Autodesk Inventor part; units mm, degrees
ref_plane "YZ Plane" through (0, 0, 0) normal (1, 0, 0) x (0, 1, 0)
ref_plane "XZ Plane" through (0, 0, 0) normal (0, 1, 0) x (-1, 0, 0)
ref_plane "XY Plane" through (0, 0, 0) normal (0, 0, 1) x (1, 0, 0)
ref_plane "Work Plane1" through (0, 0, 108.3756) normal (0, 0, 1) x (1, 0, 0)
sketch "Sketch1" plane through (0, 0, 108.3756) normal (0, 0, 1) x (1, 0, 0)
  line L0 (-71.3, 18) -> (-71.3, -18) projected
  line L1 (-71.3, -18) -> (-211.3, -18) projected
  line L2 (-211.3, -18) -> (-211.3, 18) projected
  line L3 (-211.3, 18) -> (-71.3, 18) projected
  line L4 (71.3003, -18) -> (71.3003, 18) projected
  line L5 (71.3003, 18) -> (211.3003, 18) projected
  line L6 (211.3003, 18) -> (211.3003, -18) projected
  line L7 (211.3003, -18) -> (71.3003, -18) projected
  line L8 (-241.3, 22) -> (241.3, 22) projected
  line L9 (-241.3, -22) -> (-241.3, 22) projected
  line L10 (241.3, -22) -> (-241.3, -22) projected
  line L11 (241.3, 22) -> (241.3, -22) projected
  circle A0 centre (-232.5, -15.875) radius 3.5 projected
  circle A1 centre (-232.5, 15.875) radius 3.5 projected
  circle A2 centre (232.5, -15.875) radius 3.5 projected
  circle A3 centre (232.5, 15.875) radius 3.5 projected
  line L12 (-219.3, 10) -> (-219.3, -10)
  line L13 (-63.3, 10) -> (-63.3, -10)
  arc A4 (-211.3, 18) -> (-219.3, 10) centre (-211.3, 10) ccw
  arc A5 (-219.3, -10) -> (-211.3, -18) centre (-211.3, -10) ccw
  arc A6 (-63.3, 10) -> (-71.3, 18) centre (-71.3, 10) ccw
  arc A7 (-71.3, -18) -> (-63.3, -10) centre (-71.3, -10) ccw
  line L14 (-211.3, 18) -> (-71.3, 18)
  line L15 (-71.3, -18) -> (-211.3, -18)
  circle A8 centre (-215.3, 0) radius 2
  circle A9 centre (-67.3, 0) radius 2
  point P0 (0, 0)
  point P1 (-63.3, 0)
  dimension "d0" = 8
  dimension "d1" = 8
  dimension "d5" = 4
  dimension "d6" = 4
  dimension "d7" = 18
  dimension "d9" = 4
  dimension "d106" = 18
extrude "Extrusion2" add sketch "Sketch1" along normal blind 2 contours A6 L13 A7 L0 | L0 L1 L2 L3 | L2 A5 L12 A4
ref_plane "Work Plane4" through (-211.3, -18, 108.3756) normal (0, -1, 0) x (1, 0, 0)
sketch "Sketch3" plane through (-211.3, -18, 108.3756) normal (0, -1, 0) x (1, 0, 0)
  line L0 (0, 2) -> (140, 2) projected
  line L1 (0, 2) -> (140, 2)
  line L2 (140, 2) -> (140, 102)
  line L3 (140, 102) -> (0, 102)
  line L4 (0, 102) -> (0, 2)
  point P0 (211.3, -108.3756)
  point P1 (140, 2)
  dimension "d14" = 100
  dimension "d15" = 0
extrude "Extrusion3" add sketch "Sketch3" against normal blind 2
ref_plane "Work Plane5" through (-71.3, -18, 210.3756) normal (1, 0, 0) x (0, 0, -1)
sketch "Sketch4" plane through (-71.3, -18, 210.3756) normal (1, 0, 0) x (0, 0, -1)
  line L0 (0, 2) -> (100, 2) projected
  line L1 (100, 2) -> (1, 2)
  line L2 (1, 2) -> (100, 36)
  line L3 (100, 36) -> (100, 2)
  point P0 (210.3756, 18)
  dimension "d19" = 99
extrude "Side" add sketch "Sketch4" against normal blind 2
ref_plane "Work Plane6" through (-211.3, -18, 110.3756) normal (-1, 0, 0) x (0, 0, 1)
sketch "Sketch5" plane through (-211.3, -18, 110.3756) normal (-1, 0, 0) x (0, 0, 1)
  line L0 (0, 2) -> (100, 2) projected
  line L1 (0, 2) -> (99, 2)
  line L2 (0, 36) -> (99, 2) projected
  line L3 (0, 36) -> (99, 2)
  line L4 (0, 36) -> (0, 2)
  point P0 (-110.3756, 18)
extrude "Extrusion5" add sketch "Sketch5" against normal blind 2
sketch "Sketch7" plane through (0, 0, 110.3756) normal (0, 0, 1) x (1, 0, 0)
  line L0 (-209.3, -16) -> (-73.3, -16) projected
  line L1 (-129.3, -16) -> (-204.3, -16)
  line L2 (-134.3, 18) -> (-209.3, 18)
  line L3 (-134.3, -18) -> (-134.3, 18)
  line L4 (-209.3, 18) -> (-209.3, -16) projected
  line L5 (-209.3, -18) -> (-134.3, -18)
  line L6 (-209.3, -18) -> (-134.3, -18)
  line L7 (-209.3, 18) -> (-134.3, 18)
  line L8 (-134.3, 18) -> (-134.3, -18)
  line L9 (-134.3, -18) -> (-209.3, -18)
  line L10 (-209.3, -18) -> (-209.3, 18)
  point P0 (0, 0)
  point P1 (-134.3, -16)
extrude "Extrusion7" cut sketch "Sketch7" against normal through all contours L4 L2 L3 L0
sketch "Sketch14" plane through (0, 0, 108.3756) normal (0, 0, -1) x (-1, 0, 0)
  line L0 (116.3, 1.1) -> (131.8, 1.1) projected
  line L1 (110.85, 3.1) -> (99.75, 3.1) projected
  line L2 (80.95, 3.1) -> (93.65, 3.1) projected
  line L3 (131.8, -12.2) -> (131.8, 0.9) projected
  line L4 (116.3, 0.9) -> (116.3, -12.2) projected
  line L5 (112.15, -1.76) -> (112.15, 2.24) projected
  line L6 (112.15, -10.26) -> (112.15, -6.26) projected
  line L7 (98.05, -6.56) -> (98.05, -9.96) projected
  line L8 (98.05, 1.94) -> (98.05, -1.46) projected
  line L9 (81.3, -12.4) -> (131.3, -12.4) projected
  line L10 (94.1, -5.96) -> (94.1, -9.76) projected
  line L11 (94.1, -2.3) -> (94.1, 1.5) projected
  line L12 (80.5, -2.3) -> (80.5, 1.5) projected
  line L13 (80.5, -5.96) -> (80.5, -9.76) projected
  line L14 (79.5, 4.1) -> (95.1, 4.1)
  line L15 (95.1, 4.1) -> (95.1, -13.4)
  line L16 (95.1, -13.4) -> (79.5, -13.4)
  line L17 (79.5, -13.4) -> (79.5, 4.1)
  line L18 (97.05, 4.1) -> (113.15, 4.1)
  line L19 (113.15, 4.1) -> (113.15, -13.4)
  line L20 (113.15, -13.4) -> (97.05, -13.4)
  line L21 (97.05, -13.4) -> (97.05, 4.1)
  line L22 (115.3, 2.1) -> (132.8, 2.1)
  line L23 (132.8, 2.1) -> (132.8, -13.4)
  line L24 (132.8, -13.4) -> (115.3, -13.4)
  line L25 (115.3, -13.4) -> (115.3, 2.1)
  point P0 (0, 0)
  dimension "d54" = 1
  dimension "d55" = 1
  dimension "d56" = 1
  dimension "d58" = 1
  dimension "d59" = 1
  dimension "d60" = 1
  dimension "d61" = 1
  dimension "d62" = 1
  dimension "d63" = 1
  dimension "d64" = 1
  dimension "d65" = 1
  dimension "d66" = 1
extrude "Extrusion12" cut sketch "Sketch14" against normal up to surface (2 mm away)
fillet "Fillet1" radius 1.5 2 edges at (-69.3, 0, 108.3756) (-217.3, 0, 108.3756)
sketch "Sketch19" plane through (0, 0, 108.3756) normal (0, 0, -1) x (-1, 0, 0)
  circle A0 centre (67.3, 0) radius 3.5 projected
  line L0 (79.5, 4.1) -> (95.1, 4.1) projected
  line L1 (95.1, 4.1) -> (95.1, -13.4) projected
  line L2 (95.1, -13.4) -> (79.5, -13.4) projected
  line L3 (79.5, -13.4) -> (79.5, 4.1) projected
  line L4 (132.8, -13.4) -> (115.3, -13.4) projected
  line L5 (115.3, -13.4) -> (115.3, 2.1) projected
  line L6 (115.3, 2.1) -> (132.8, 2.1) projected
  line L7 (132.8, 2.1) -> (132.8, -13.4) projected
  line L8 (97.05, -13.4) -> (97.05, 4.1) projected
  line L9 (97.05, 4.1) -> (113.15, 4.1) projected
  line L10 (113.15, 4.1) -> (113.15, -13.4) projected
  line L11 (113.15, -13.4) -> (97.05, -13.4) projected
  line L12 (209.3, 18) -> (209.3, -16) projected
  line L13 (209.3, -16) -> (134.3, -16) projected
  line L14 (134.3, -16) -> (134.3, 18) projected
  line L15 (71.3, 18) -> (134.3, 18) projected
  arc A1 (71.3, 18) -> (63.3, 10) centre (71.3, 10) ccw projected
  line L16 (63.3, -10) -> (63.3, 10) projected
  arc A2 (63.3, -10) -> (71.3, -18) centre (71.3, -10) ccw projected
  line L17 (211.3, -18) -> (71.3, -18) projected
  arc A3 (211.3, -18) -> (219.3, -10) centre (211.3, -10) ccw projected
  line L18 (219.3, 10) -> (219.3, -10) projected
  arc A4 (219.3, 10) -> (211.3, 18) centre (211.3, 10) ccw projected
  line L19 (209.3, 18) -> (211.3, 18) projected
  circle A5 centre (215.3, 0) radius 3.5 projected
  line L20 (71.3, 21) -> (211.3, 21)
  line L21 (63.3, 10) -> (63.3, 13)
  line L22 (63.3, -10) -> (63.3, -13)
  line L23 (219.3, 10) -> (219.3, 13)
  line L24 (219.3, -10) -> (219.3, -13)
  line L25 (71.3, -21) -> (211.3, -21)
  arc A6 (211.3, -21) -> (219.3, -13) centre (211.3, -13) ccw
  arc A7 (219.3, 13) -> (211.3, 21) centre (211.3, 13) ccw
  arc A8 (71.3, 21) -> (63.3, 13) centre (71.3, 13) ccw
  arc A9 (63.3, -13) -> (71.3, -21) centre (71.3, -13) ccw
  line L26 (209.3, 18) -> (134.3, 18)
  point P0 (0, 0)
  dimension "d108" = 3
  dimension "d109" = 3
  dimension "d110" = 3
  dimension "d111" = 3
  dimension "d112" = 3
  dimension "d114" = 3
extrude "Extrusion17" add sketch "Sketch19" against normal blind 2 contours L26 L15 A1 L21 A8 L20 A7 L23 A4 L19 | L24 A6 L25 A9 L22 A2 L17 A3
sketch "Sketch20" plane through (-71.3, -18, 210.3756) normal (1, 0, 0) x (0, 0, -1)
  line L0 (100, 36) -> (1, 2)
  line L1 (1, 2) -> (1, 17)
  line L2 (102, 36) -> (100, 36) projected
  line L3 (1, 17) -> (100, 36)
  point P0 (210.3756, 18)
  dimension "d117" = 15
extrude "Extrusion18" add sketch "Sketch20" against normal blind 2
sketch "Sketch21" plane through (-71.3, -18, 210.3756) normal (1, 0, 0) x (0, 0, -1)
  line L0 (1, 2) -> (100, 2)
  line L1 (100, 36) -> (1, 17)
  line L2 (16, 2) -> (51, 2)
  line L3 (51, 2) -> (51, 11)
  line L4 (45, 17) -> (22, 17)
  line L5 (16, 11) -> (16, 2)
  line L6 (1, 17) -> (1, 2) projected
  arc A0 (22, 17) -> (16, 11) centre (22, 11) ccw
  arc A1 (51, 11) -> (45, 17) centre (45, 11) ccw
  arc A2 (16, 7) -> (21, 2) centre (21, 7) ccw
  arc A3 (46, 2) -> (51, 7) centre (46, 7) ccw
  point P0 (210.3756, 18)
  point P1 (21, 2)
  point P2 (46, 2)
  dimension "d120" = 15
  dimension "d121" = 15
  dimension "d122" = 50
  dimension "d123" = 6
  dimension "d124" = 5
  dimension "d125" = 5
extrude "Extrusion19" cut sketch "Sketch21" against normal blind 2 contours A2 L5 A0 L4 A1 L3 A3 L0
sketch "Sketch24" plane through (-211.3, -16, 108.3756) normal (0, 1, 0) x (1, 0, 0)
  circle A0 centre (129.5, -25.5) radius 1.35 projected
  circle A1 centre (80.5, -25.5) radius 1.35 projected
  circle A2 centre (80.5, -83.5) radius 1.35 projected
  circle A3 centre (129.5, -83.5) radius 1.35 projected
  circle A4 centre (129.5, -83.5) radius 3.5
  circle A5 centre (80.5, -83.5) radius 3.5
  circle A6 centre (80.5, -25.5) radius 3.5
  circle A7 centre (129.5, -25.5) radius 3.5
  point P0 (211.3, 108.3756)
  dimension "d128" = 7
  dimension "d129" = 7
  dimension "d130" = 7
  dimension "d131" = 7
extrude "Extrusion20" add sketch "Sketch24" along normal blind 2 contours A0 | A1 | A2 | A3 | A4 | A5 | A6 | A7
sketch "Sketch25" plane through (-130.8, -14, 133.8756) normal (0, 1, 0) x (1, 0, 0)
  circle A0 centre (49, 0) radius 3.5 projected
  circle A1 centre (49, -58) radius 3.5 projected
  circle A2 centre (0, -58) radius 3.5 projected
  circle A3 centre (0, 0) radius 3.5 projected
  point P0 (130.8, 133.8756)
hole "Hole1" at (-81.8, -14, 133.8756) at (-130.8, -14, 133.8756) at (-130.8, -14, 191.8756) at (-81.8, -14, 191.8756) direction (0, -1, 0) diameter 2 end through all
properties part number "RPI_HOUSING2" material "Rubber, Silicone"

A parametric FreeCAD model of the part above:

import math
import FreeCAD as App
import Part
import Sketcher

V = App.Vector


def edges_at(feature, points):
    """Names of the edges that pass closest to the given points."""
    edges = feature.Shape.Edges
    near = lambda p: min(range(len(edges)), key=lambda i: edges[i].distToShape(Part.Vertex(*p))[0])
    return sorted({f"Edge{near(p) + 1}" for p in points})


def add_polygon(sketch, points):
    """Adds a closed chain of lines whose ends are joined by coincident constraints."""
    first, n = sketch.GeometryCount, len(points)
    for a, b in zip(points, points[1:] + points[:1]):
        sketch.addGeometry(Part.LineSegment(App.Vector(*a, 0), App.Vector(*b, 0)), False)
    for i in range(n):
        sketch.addConstraint(Sketcher.Constraint("Coincident", first + i, 2, first + (i + 1) % n, 1))

doc = App.newDocument("Part")
body = doc.addObject("PartDesign::Body", "Body")

# Sketch on XY plane
sketch1 = body.newObject("Sketcher::SketchObject", "Sketch")
sketch1.AttachmentSupport = (doc.getObject("XY_Plane"), [""])
sketch1.MapMode = "FlatFace"
sketch1.AttachmentOffset = App.Placement(V(0, 0, 108.3756), App.Rotation())
sketch1.addGeometry([
    Part.ArcOfCircle(Part.Circle(V(-71.3, 10, 0), V(0, 0, 1), 8), math.radians(0), math.radians(90)),  # 0
    Part.LineSegment(V(-71.3, 18, 0), V(-211.3, 18, 0)),  # 1
    Part.ArcOfCircle(Part.Circle(V(-211.3, 10, 0), V(0, 0, 1), 8), math.radians(90), math.radians(180)),  # 2
    Part.LineSegment(V(-219.3, 10, 0), V(-219.3, -10, 0)),  # 3
    Part.ArcOfCircle(Part.Circle(V(-211.3, -10, 0), V(0, 0, 1), 8), math.radians(180), math.radians(270)),  # 4
    Part.LineSegment(V(-211.3, -18, 0), V(-71.3, -18, 0)),  # 5
    Part.ArcOfCircle(Part.Circle(V(-71.3, -10, 0), V(0, 0, 1), 8), math.radians(-90), math.radians(0)),  # 6
    Part.LineSegment(V(-63.3, -10, 0), V(-63.3, 10, 0)),  # 7
    Part.Circle(V(-67.3, 0, 0), V(0, 0, 1), 2),  # 8
    Part.Circle(V(-215.3, 0, 0), V(0, 0, 1), 2),  # 9
], False)
sketch1.addConstraint([
    Sketcher.Constraint("Tangent", 0, 2, 1, 1),
    Sketcher.Constraint("Tangent", 1, 2, 2, 1),
    Sketcher.Constraint("Tangent", 2, 2, 3, 1),
    Sketcher.Constraint("Tangent", 3, 2, 4, 1),
    Sketcher.Constraint("Tangent", 4, 2, 5, 1),
    Sketcher.Constraint("Tangent", 5, 2, 6, 1),
    Sketcher.Constraint("Tangent", 6, 2, 7, 1),
    Sketcher.Constraint("Tangent", 7, 2, 0, 1),
    Sketcher.Constraint("Horizontal", 1),
    Sketcher.Constraint("Vertical", 3),
    Sketcher.Constraint("Horizontal", 5),
    Sketcher.Constraint("Vertical", 7),
    Sketcher.Constraint("Equal", 0, 2),
    Sketcher.Constraint("Equal", 2, 4),
    Sketcher.Constraint("Equal", 4, 6),
    Sketcher.Constraint("Equal", 8, 9),
    Sketcher.Constraint("PointOnObject", 8, 3, -1),
    Sketcher.Constraint("PointOnObject", 9, 3, -1),
    Sketcher.Constraint("Diameter", 8, 4.0),
    Sketcher.Constraint("Radius", 0, 8.0),
    Sketcher.Constraint("DistanceY", -1, 1, 0, 2, 18.0),
    Sketcher.Constraint("DistanceY", 4, 2, -1, 1, 18.0),
    Sketcher.Constraint("DistanceX", 0, 3, 8, 3, 4.0),
    Sketcher.Constraint("DistanceX", 9, 3, 2, 3, 4.0),
    Sketcher.Constraint("DistanceX", 1, 2, 1, 1, 140.0),
    Sketcher.Constraint("DistanceX", 0, 3, -1, 1, 71.3),
])
pad1 = body.newObject("PartDesign::Pad", "Pad")
pad1.Profile = sketch1
pad1.Length = 2

# Sketch on XZ plane
sketch2 = body.newObject("Sketcher::SketchObject", "Sketch001")
sketch2.AttachmentSupport = (doc.getObject("XZ_Plane"), [""])
sketch2.MapMode = "FlatFace"
sketch2.AttachmentOffset = App.Placement(V(0, 0, 18), App.Rotation())
add_polygon(sketch2, [(-211, 210), (-211, 110), (-71, 110), (-71, 210)])  # lines 0-3
sketch2.addConstraint([
    Sketcher.Constraint("Vertical", 0),
    Sketcher.Constraint("Horizontal", 1),
    Sketcher.Constraint("Vertical", 2),
    Sketcher.Constraint("Horizontal", 3),
    Sketcher.Constraint("DistanceY", 0, 2, 0, 1, 100.0),
    Sketcher.Constraint("DistanceX", 1, 1, 1, 2, 140.0),
    Sketcher.Constraint("DistanceX", 0, 2, -1, 1, 211.3),
    Sketcher.Constraint("DistanceY", -1, 1, 0, 2, 110.3756),
])
pad2 = body.newObject("PartDesign::Pad", "Pad001")
pad2.Profile = sketch2
pad2.Length = 2
pad2.Reversed = True

# Sketch on YZ plane
sketch3 = body.newObject("Sketcher::SketchObject", "Sketch002")
sketch3.AttachmentSupport = (doc.getObject("YZ_Plane"), [""])
sketch3.MapMode = "FlatFace"
sketch3.AttachmentOffset = App.Placement(V(0, 0, -71.3), App.Rotation())
add_polygon(sketch3, [(18, 110), (-16, 209), (-16, 110)])  # lines 0-2
sketch3.addConstraint([
    Sketcher.Constraint("Vertical", 1),
    Sketcher.Constraint("Horizontal", 2),
    Sketcher.Constraint("DistanceY", 1, 2, 1, 1, 99.0),
    Sketcher.Constraint("DistanceX", 2, 1, 2, 2, 34.0),
    Sketcher.Constraint("DistanceX", 0, 2, -1, 1, 16.0),
    Sketcher.Constraint("DistanceY", -1, 1, 0, 2, 209.3756),
])
pad3 = body.newObject("PartDesign::Pad", "Pad002")
pad3.Profile = sketch3
pad3.Length = 2
pad3.Reversed = True

# Sketch on YZ plane
sketch4 = body.newObject("Sketcher::SketchObject", "Sketch003")
sketch4.AttachmentSupport = (doc.getObject("YZ_Plane"), [""])
sketch4.MapMode = "FlatFace"
sketch4.AttachmentOffset = App.Placement(V(0, 0, -211.3), App.Rotation())
add_polygon(sketch4, [(18, 110), (-16, 110), (-16, 209)])  # lines 0-2
sketch4.addConstraint([
    Sketcher.Constraint("Horizontal", 0),
    Sketcher.Constraint("Vertical", 1),
    Sketcher.Constraint("DistanceX", 0, 2, 0, 1, 34.0),
    Sketcher.Constraint("DistanceY", 1, 1, 1, 2, 99.0),
    Sketcher.Constraint("DistanceX", 0, 2, -1, 1, 16.0),
    Sketcher.Constraint("DistanceY", -1, 1, 0, 2, 110.3756),
])
pad4 = body.newObject("PartDesign::Pad", "Pad003")
pad4.Profile = sketch4
pad4.Length = 2

# Sketch on XY plane
sketch5 = body.newObject("Sketcher::SketchObject", "Sketch004")
sketch5.AttachmentSupport = (doc.getObject("XY_Plane"), [""])
sketch5.MapMode = "FlatFace"
sketch5.AttachmentOffset = App.Placement(V(0, 0, 110.3756), App.Rotation())
add_polygon(sketch5, [(-209, 18), (-209, -16), (-134, -16), (-134, 18)])  # lines 0-3
sketch5.addConstraint([
    Sketcher.Constraint("Vertical", 0),
    Sketcher.Constraint("Horizontal", 1),
    Sketcher.Constraint("Vertical", 2),
    Sketcher.Constraint("Horizontal", 3),
    Sketcher.Constraint("DistanceX", 1, 1, 1, 2, 75.0),
    Sketcher.Constraint("DistanceY", 0, 2, 0, 1, 34.0),
    Sketcher.Constraint("DistanceY", 0, 2, -1, 1, 16.0),
    Sketcher.Constraint("DistanceX", 0, 2, -1, 1, 209.3),
])
pocket1 = body.newObject("PartDesign::Pocket", "Pocket")
pocket1.Profile = sketch5
pocket1.Type = "ThroughAll"

# Sketch on XY plane
sketch6 = body.newObject("Sketcher::SketchObject", "Sketch005")
sketch6.AttachmentSupport = (doc.getObject("XY_Plane"), [""])
sketch6.MapMode = "FlatFace"
sketch6.AttachmentOffset = App.Placement(V(0, 0, 108.3756), App.Rotation())
add_polygon(sketch6, [(-115, 2), (-115, -13), (-133, -13), (-133, 2)])  # lines 0-3
add_polygon(sketch6, [(-97, 4), (-97, -13), (-113, -13), (-113, 4)])  # lines 4-7
add_polygon(sketch6, [(-95, -13), (-95, 4), (-80, 4), (-80, -13)])  # lines 8-11
sketch6.addConstraint([
    Sketcher.Constraint("Vertical", 0),
    Sketcher.Constraint("Horizontal", 1),
    Sketcher.Constraint("Vertical", 2),
    Sketcher.Constraint("Horizontal", 3),
    Sketcher.Constraint("Vertical", 4),
    Sketcher.Constraint("Horizontal", 5),
    Sketcher.Constraint("Vertical", 6),
    Sketcher.Constraint("Horizontal", 7),
    Sketcher.Constraint("Vertical", 8),
    Sketcher.Constraint("Horizontal", 9),
    Sketcher.Constraint("Vertical", 10),
    Sketcher.Constraint("Horizontal", 11),
    Sketcher.Constraint("Horizontal", 1, 2, 4, 2),
    Sketcher.Constraint("Horizontal", 7, 2, 8, 2),
    Sketcher.Constraint("Horizontal", 5, 2, 10, 2),
    Sketcher.Constraint("Equal", 3, 4),
    Sketcher.Constraint("DistanceX", 1, 2, 1, 1, 17.5),
    Sketcher.Constraint("DistanceX", 5, 2, 5, 1, 16.1),
    Sketcher.Constraint("DistanceX", 9, 1, 9, 2, 15.6),
    Sketcher.Constraint("DistanceY", 0, 2, 0, 1, 15.5),
    Sketcher.Constraint("DistanceX", 0, 2, -1, 1, 115.3),
    Sketcher.Constraint("DistanceY", 0, 2, -1, 1, 13.4),
    Sketcher.Constraint("DistanceX", 8, 2, -1, 1, 95.1),
    Sketcher.Constraint("DistanceX", 4, 2, -1, 1, 97.05),
])
pocket2 = body.newObject("PartDesign::Pocket", "Pocket001")
pocket2.Profile = sketch6
pocket2.Length = 2
pocket2.Reversed = True
doc.recompute()

fillet = body.newObject("PartDesign::Fillet", "Fillet")
fillet.Base = (pocket2, edges_at(pocket2, [(-69.3, 0, 108.376), (-217.3, 0, 108.376)]))
fillet.Radius = 1.5

# Sketch on XY plane
sketch7 = body.newObject("Sketcher::SketchObject", "Sketch006")
sketch7.AttachmentSupport = (doc.getObject("XY_Plane"), [""])
sketch7.MapMode = "FlatFace"
sketch7.AttachmentOffset = App.Placement(V(0, 0, 108.3756), App.Rotation())
sketch7.addGeometry([
    Part.LineSegment(V(-71.3, 18, 0), V(-211.3, 18, 0)),  # 0
    Part.ArcOfCircle(Part.Circle(V(-211.3, 10, 0), V(0, 0, 1), 8), math.radians(90), math.radians(180)),  # 1
    Part.LineSegment(V(-219.3, 10, 0), V(-219.3, 13, 0)),  # 2
    Part.ArcOfCircle(Part.Circle(V(-211.3, 13, 0), V(0, 0, 1), 8), math.radians(90), math.radians(180)),  # 3
    Part.LineSegment(V(-211.3, 21, 0), V(-71.3, 21, 0)),  # 4
    Part.ArcOfCircle(Part.Circle(V(-71.3, 13, 0), V(0, 0, 1), 8), math.radians(0), math.radians(90)),  # 5
    Part.LineSegment(V(-63.3, 13, 0), V(-63.3, 10, 0)),  # 6
    Part.ArcOfCircle(Part.Circle(V(-71.3, 10, 0), V(0, 0, 1), 8), math.radians(0), math.radians(90)),  # 7
    Part.LineSegment(V(-219.3, -13, 0), V(-219.3, -10, 0)),  # 8
    Part.ArcOfCircle(Part.Circle(V(-211.3, -10, 0), V(0, 0, 1), 8), math.radians(180), math.radians(270)),  # 9
    Part.LineSegment(V(-211.3, -18, 0), V(-71.3, -18, 0)),  # 10
    Part.ArcOfCircle(Part.Circle(V(-71.3, -10, 0), V(0, 0, 1), 8), math.radians(-90), math.radians(0)),  # 11
    Part.LineSegment(V(-63.3, -10, 0), V(-63.3, -13, 0)),  # 12
    Part.ArcOfCircle(Part.Circle(V(-71.3, -13, 0), V(0, 0, 1), 8), math.radians(-90), math.radians(0)),  # 13
    Part.LineSegment(V(-71.3, -21, 0), V(-211.3, -21, 0)),  # 14
    Part.ArcOfCircle(Part.Circle(V(-211.3, -13, 0), V(0, 0, 1), 8), math.radians(180), math.radians(270)),  # 15
], False)
sketch7.addConstraint([
    Sketcher.Constraint("Tangent", 0, 2, 1, 1),
    Sketcher.Constraint("Tangent", 1, 2, 2, 1),
    Sketcher.Constraint("Tangent", 2, 2, 3, 2),
    Sketcher.Constraint("Tangent", 3, 1, 4, 1),
    Sketcher.Constraint("Tangent", 4, 2, 5, 2),
    Sketcher.Constraint("Tangent", 5, 1, 6, 1),
    Sketcher.Constraint("Tangent", 6, 2, 7, 1),
    Sketcher.Constraint("Tangent", 7, 2, 0, 1),
    Sketcher.Constraint("Tangent", 8, 2, 9, 1),
    Sketcher.Constraint("Tangent", 9, 2, 10, 1),
    Sketcher.Constraint("Tangent", 10, 2, 11, 1),
    Sketcher.Constraint("Tangent", 11, 2, 12, 1),
    Sketcher.Constraint("Tangent", 12, 2, 13, 2),
    Sketcher.Constraint("Tangent", 13, 1, 14, 1),
    Sketcher.Constraint("Tangent", 14, 2, 15, 2),
    Sketcher.Constraint("Tangent", 15, 1, 8, 1),
    Sketcher.Constraint("Horizontal", 0),
    Sketcher.Constraint("Vertical", 2),
    Sketcher.Constraint("Horizontal", 4),
    Sketcher.Constraint("Vertical", 6),
    Sketcher.Constraint("Vertical", 8),
    Sketcher.Constraint("Horizontal", 10),
    Sketcher.Constraint("Vertical", 12),
    Sketcher.Constraint("Horizontal", 14),
    Sketcher.Constraint("Equal", 1, 3),
    Sketcher.Constraint("Equal", 3, 5),
    Sketcher.Constraint("Equal", 5, 7),
    Sketcher.Constraint("Equal", 7, 9),
    Sketcher.Constraint("Equal", 9, 11),
    Sketcher.Constraint("Equal", 11, 13),
    Sketcher.Constraint("Equal", 13, 15),
    Sketcher.Constraint("Symmetric", 1, 3, 9, 3, -1),
    Sketcher.Constraint("Symmetric", 5, 3, 13, 3, -1),
    Sketcher.Constraint("DistanceY", 2, 1, 2, 2, 3.0),
    Sketcher.Constraint("Radius", 1, 8.0),
    Sketcher.Constraint("DistanceX", 0, 2, 0, 1, 140.0),
    Sketcher.Constraint("DistanceY", -1, 1, 1, 3, 10.0),
    Sketcher.Constraint("DistanceX", 1, 3, -1, 1, 211.3),
])
pad5 = body.newObject("PartDesign::Pad", "Pad004")
pad5.Profile = sketch7
pad5.Length = 2

# Sketch on YZ plane
sketch8 = body.newObject("Sketcher::SketchObject", "Sketch007")
sketch8.AttachmentSupport = (doc.getObject("YZ_Plane"), [""])
sketch8.MapMode = "FlatFace"
sketch8.AttachmentOffset = App.Placement(V(0, 0, -71.3), App.Rotation())
add_polygon(sketch8, [(-16, 209), (18, 110), (-1, 209)])  # lines 0-2
sketch8.addConstraint([
    Sketcher.Constraint("Horizontal", 2),
    Sketcher.Constraint("DistanceX", 2, 2, 2, 1, 15.0),
    Sketcher.Constraint("DistanceX", -1, 1, 0, 2, 18.0),
    Sketcher.Constraint("DistanceX", 1, 2, -1, 1, 1.0),
    Sketcher.Constraint("DistanceY", 0, 2, 1, 2, 99.0),
    Sketcher.Constraint("DistanceY", -1, 1, 0, 2, 110.3756),
])
pad6 = body.newObject("PartDesign::Pad", "Pad005")
pad6.Profile = sketch8
pad6.Length = 2
pad6.Reversed = True

# Sketch on YZ plane
sketch9 = body.newObject("Sketcher::SketchObject", "Sketch008")
sketch9.AttachmentSupport = (doc.getObject("YZ_Plane"), [""])
sketch9.MapMode = "FlatFace"
sketch9.AttachmentOffset = App.Placement(V(0, 0, -71.3), App.Rotation())
sketch9.addGeometry([
    Part.ArcOfCircle(Part.Circle(V(-11, 189.4, 0), V(0, 0, 1), 5), math.radians(90), math.radians(180)),  # 0
    Part.LineSegment(V(-16, 189.4, 0), V(-16, 164.4, 0)),  # 1
    Part.ArcOfCircle(Part.Circle(V(-11, 164.4, 0), V(0, 0, 1), 5), math.radians(180), math.radians(270)),  # 2
    Part.LineSegment(V(-11, 159.4, 0), V(-7, 159.4, 0)),  # 3
    Part.ArcOfCircle(Part.Circle(V(-7, 165.4, 0), V(0, 0, 1), 6), math.radians(-90), math.radians(0)),  # 4
    Part.LineSegment(V(-1, 165.4, 0), V(-1, 188.4, 0)),  # 5
    Part.ArcOfCircle(Part.Circle(V(-7, 188.4, 0), V(0, 0, 1), 6), math.radians(0), math.radians(90)),  # 6
    Part.LineSegment(V(-7, 194.4, 0), V(-11, 194.4, 0)),  # 7
], False)
sketch9.addConstraint([
    Sketcher.Constraint("Tangent", 0, 2, 1, 1),
    Sketcher.Constraint("Tangent", 1, 2, 2, 1),
    Sketcher.Constraint("Tangent", 2, 2, 3, 1),
    Sketcher.Constraint("Tangent", 3, 2, 4, 1),
    Sketcher.Constraint("Tangent", 4, 2, 5, 1),
    Sketcher.Constraint("Tangent", 5, 2, 6, 1),
    Sketcher.Constraint("Tangent", 6, 2, 7, 1),
    Sketcher.Constraint("Tangent", 7, 2, 0, 1),
    Sketcher.Constraint("Vertical", 1),
    Sketcher.Constraint("Horizontal", 3),
    Sketcher.Constraint("Vertical", 5),
    Sketcher.Constraint("Horizontal", 7),
    Sketcher.Constraint("Equal", 0, 2),
    Sketcher.Constraint("Equal", 4, 6),
    Sketcher.Constraint("Radius", 0, 5.0),
    Sketcher.Constraint("Radius", 4, 6.0),
    Sketcher.Constraint("DistanceX", 1, 2, 4, 2, 15.0),
    Sketcher.Constraint("DistanceY", 1, 2, 1, 1, 25.0),
    Sketcher.Constraint("DistanceX", 0, 3, -1, 1, 11.0),
    Sketcher.Constraint("DistanceY", -1, 1, 0, 3, 189.3756),
])
pocket3 = body.newObject("PartDesign::Pocket", "Pocket002")
pocket3.Profile = sketch9
pocket3.Length = 2

# Sketch on XZ plane
sketch10 = body.newObject("Sketcher::SketchObject", "Sketch009")
sketch10.AttachmentSupport = (doc.getObject("XZ_Plane"), [""])
sketch10.MapMode = "FlatFace"
sketch10.AttachmentOffset = App.Placement(V(0, 0, 16), App.Rotation())
sketch10.addGeometry([
    Part.Circle(V(-81.8, 133.9, 0), V(0, 0, 1), 3.5),
    Part.Circle(V(-130.8, 133.9, 0), V(0, 0, 1), 3.5),
    Part.Circle(V(-130.8, 191.9, 0), V(0, 0, 1), 3.5),
    Part.Circle(V(-81.8, 191.9, 0), V(0, 0, 1), 3.5),
], False)
sketch10.addConstraint([
    Sketcher.Constraint("Equal", 0, 1),
    Sketcher.Constraint("Equal", 1, 2),
    Sketcher.Constraint("Equal", 2, 3),
    Sketcher.Constraint("Horizontal", 0, 3, 1, 3),
    Sketcher.Constraint("Horizontal", 2, 3, 3, 3),
    Sketcher.Constraint("Vertical", 1, 3, 2, 3),
    Sketcher.Constraint("Vertical", 0, 3, 3, 3),
    Sketcher.Constraint("Diameter", 0, 7.0),
    Sketcher.Constraint("DistanceX", 1, 3, 0, 3, 49.0),
    Sketcher.Constraint("DistanceY", 1, 3, 2, 3, 58.0),
    Sketcher.Constraint("DistanceX", 0, 3, -1, 1, 81.8),
    Sketcher.Constraint("DistanceY", -1, 1, 0, 3, 133.8756),
])
pad7 = body.newObject("PartDesign::Pad", "Pad006")
pad7.Profile = sketch10
pad7.Length = 2
pad7.Reversed = True

# Sketch on XZ plane
sketch11 = body.newObject("Sketcher::SketchObject", "Sketch010")
sketch11.AttachmentSupport = (doc.getObject("XZ_Plane"), [""])
sketch11.MapMode = "FlatFace"
sketch11.AttachmentOffset = App.Placement(V(0, 0, 14), App.Rotation())
sketch11.addGeometry([
    Part.Circle(V(-81.8, 133.9, 0), V(0, 0, 1), 1),
    Part.Circle(V(-130.8, 133.9, 0), V(0, 0, 1), 1),
    Part.Circle(V(-130.8, 191.9, 0), V(0, 0, 1), 1),
    Part.Circle(V(-81.8, 191.9, 0), V(0, 0, 1), 1),
], False)
sketch11.addConstraint([
    Sketcher.Constraint("Equal", 0, 1),
    Sketcher.Constraint("Equal", 1, 2),
    Sketcher.Constraint("Equal", 2, 3),
    Sketcher.Constraint("Horizontal", 0, 3, 1, 3),
    Sketcher.Constraint("Horizontal", 2, 3, 3, 3),
    Sketcher.Constraint("Vertical", 1, 3, 2, 3),
    Sketcher.Constraint("Vertical", 0, 3, 3, 3),
    Sketcher.Constraint("Diameter", 0, 2.0),
    Sketcher.Constraint("DistanceX", 1, 3, 0, 3, 49.0),
    Sketcher.Constraint("DistanceY", 1, 3, 2, 3, 58.0),
    Sketcher.Constraint("DistanceX", 0, 3, -1, 1, 81.8),
    Sketcher.Constraint("DistanceY", -1, 1, 0, 3, 133.8756),
])
doc.recompute()
hole = body.newObject("PartDesign::Hole", "Hole")
hole.Profile = sketch11
hole.ThreadType = "None"
hole.Diameter = 2
hole.DepthType = "ThroughAll"
hole.Reversed = True

doc.recompute()
